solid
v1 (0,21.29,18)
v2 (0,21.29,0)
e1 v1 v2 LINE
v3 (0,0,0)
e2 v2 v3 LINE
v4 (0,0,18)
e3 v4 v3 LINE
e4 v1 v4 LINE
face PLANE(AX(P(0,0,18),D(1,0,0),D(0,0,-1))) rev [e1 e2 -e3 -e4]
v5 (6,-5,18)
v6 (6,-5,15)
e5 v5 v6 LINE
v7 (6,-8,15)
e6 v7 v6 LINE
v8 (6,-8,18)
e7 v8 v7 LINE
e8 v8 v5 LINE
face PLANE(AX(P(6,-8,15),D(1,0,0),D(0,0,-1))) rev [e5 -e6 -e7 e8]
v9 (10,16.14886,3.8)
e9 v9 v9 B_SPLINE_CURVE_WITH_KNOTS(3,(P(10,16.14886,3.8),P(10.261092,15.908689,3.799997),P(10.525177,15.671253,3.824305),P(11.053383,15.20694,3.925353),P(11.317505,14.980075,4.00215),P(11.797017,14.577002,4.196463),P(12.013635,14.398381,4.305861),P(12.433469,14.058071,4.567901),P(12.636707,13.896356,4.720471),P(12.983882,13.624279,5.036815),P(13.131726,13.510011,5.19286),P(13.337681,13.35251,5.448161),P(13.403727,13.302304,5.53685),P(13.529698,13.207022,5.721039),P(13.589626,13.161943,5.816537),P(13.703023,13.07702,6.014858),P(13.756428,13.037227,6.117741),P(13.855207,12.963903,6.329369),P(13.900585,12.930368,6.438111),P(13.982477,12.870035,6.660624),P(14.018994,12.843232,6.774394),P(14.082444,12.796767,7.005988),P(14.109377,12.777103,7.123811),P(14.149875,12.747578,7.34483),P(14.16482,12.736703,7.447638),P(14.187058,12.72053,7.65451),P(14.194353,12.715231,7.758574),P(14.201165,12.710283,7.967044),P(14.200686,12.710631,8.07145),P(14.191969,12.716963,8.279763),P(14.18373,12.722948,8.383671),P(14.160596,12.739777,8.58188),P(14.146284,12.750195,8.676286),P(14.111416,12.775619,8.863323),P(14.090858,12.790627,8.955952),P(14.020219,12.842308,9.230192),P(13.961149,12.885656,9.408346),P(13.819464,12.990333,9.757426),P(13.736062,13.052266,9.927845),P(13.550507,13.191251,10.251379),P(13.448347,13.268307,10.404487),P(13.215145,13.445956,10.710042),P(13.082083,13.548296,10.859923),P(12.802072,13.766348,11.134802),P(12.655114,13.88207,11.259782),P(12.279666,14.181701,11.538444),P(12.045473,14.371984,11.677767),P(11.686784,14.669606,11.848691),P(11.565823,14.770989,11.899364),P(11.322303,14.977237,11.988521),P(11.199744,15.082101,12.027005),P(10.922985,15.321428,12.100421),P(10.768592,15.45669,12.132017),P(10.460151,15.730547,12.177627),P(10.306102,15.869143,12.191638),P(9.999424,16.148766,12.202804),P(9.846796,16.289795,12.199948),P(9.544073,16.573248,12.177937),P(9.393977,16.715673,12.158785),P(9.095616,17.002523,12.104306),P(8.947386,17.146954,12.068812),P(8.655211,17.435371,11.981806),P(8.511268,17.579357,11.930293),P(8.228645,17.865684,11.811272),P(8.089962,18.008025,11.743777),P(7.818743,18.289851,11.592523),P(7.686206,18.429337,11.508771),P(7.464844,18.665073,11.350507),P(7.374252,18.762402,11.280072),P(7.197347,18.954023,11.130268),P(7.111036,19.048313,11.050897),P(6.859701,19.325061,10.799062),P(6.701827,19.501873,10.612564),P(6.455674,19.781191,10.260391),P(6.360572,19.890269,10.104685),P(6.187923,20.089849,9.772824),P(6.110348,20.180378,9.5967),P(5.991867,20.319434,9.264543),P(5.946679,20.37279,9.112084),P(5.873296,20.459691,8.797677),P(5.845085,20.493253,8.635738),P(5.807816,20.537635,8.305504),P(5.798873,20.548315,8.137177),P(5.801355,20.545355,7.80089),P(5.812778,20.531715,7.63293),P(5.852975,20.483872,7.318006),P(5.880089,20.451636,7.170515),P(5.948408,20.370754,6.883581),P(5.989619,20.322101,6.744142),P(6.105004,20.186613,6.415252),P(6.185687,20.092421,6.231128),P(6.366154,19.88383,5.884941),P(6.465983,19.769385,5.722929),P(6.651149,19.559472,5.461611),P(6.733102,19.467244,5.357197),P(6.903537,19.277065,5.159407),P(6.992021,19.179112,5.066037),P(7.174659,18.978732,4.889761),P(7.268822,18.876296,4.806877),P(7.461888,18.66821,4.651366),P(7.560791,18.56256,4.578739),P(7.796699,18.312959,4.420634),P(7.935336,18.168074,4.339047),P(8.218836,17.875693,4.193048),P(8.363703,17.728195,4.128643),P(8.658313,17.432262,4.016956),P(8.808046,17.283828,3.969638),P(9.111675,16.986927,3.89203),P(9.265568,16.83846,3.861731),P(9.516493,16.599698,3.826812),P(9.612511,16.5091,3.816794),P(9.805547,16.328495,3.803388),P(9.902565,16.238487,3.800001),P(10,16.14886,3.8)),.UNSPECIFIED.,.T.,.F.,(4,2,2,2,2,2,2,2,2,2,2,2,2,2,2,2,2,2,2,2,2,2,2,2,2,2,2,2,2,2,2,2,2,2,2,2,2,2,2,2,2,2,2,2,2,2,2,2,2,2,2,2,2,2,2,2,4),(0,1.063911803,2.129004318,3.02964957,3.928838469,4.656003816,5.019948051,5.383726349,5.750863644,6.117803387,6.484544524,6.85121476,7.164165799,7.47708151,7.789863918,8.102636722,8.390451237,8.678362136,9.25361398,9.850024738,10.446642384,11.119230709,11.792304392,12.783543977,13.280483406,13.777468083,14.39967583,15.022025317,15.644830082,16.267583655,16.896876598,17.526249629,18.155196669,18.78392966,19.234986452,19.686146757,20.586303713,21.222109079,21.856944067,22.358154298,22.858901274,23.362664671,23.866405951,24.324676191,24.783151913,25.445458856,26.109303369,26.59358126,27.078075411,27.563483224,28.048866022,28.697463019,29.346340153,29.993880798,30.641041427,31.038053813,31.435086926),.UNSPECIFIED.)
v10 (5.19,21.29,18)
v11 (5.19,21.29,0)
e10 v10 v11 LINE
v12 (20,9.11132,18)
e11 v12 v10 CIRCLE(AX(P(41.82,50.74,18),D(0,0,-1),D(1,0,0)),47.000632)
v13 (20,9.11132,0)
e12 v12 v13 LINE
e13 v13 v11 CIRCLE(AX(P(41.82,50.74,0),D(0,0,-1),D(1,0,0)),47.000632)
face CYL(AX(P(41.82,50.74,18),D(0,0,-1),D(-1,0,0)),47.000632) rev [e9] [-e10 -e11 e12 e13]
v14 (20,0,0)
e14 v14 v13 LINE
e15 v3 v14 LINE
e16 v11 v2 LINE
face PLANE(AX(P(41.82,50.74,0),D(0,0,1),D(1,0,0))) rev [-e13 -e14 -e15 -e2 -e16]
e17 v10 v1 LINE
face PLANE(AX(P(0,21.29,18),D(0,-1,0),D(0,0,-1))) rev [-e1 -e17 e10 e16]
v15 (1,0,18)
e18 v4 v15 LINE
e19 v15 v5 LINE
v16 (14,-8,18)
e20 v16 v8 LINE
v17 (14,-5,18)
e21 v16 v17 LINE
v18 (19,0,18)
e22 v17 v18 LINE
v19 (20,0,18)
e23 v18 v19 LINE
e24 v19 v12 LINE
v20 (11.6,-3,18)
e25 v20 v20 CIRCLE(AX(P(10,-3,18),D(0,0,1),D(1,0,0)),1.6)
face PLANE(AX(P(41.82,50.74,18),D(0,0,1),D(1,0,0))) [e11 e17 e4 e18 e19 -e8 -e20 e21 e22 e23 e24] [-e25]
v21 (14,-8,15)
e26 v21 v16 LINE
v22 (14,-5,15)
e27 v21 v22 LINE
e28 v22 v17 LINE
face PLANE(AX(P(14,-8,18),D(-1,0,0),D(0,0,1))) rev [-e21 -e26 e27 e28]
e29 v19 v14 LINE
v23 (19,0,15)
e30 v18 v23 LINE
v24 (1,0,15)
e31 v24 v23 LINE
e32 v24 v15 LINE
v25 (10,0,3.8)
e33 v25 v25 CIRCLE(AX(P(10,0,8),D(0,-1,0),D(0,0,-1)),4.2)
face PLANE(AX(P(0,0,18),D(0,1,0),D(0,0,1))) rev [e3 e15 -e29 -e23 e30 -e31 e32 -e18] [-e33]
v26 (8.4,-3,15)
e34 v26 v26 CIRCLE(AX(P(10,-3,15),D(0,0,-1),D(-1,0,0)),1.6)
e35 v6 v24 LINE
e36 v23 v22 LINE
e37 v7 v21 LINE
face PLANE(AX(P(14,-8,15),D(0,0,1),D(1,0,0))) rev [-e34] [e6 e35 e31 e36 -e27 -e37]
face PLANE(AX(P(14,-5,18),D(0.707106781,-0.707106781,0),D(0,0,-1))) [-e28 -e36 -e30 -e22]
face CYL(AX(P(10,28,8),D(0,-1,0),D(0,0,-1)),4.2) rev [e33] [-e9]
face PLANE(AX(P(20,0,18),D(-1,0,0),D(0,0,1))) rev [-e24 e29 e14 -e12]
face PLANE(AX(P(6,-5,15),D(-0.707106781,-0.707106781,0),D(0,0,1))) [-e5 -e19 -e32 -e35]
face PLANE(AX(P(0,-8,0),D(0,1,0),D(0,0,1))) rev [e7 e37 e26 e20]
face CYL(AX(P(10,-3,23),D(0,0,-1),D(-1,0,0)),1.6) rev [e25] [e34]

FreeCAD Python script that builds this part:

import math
import FreeCAD as App
import Part
import Sketcher

V = App.Vector
Q = App.Units.Quantity


def edges_at(feature, points):
    """Names of the edges that pass closest to the given points."""
    edges = feature.Shape.Edges
    near = lambda p: min(range(len(edges)), key=lambda i: edges[i].distToShape(Part.Vertex(*p))[0])
    return sorted({f"Edge{near(p) + 1}" for p in points})


def add_polygon(sketch, points):
    """Adds a closed chain of lines whose ends are joined by coincident constraints."""
    first, n = sketch.GeometryCount, len(points)
    for a, b in zip(points, points[1:] + points[:1]):
        sketch.addGeometry(Part.LineSegment(App.Vector(*a, 0), App.Vector(*b, 0)), False)
    for i in range(n):
        sketch.addConstraint(Sketcher.Constraint("Coincident", first + i, 2, first + (i + 1) % n, 1))

doc = App.newDocument("Part")
params = doc.addObject("Spreadsheet::Sheet", "Params")
for row, (alias, value) in enumerate([
    ("sketch1_width", "20 mm"),
    ("sketch1_width2", "5.19 mm"),
    ("sketch1_height", "21.29 mm"),
    ("pad1_length", "18 mm"),
    ("sketch2_diameter", "8.4 mm"),
    ("pocket1_length", "28 mm"),
    ("sketch3_width", "8 mm"),
    ("sketch3_height", "3 mm"),
    ("pad2_length", "8 mm"),
    ("chamfer_size", "5 mm"),
    ("chamfer2_size", "5 mm"),
    ("sketch4_diameter", "3.2 mm"),
    ("pocket2_length", "8 mm"),
], start=1):
    params.set(f"A{row}", alias)
    params.set(f"B{row}", "=" + value)
    params.setAlias(f"B{row}", alias)

body = doc.addObject("PartDesign::Body", "Body")

# Sketch on XY plane
sketch1 = body.newObject("Sketcher::SketchObject", "Sketch")
sketch1.AttachmentSupport = (doc.getObject("XY_Plane"), [""])
sketch1.MapMode = "FlatFace"
sketch1.addGeometry(Part.LineSegment(V(0, 0, 0), V(20, 0, 0)), False)
sketch1.addGeometry(Part.LineSegment(V(20, 0, 0), V(20, 9, 0)), False)
sketch1.addGeometry(Part.ArcOfCircle(Part.Circle(V(42, 51, 0), V(0, 0, 1), 47), math.radians(-141), math.radians(-118)), False)
sketch1.addGeometry(Part.LineSegment(V(5, 21, 0), V(0, 21, 0)), False)
sketch1.addGeometry(Part.LineSegment(V(0, 21, 0), V(0, 0, 0)), False)
sketch1.addConstraint(Sketcher.Constraint("Coincident", 0, 2, 1, 1))
sketch1.addConstraint(Sketcher.Constraint("Coincident", 1, 2, 2, 2))
sketch1.addConstraint(Sketcher.Constraint("Coincident", 2, 1, 3, 1))
sketch1.addConstraint(Sketcher.Constraint("Coincident", 3, 2, 4, 1))
sketch1.addConstraint(Sketcher.Constraint("Coincident", 4, 2, 0, 1))
sketch1.addConstraint(Sketcher.Constraint("Horizontal", 0))
sketch1.addConstraint(Sketcher.Constraint("Vertical", 1))
sketch1.addConstraint(Sketcher.Constraint("Horizontal", 3))
sketch1.addConstraint(Sketcher.Constraint("Vertical", 4))
sketch1.addConstraint(Sketcher.Constraint("Coincident", 4, 2, -1, 1))
sketch1.addConstraint(Sketcher.Constraint("DistanceX", 0, 1, 0, 2, Q("20 mm")))
sketch1.addConstraint(Sketcher.Constraint("DistanceX", 3, 2, 3, 1, Q("5.19 mm")))
sketch1.addConstraint(Sketcher.Constraint("DistanceY", 4, 2, 4, 1, Q("21.29 mm")))
sketch1.addConstraint(Sketcher.Constraint("DistanceX", -1, 1, 2, 3, Q("41.82 mm")))
sketch1.addConstraint(Sketcher.Constraint("DistanceY", -1, 1, 2, 3, Q("50.74 mm")))
sketch1.setExpression("Constraints[10]", "Params.sketch1_width")
sketch1.setExpression("Constraints[11]", "Params.sketch1_width2")
sketch1.setExpression("Constraints[12]", "Params.sketch1_height")
pad1 = body.newObject("PartDesign::Pad", "Pad")
pad1.Profile = sketch1
pad1.setExpression("Length", "Params.pad1_length")

# Sketch on XZ plane
sketch2 = body.newObject("Sketcher::SketchObject", "Sketch001")
sketch2.AttachmentSupport = (doc.getObject("XZ_Plane"), [""])
sketch2.MapMode = "FlatFace"
sketch2.addGeometry(Part.Circle(V(10, 8, 0), V(0, 0, 1), 4.2), False)
sketch2.addConstraint(Sketcher.Constraint("Diameter", 0, Q("8.4 mm")))
sketch2.addConstraint(Sketcher.Constraint("DistanceX", -1, 1, 0, 3, Q("10 mm")))
sketch2.addConstraint(Sketcher.Constraint("DistanceY", -1, 1, 0, 3, Q("8 mm")))
sketch2.setExpression("Constraints[0]", "Params.sketch2_diameter")
pocket1 = body.newObject("PartDesign::Pocket", "Pocket")
pocket1.Profile = sketch2
pocket1.setExpression("Length", "Params.pocket1_length")

# Sketch on XZ plane
sketch3 = body.newObject("Sketcher::SketchObject", "Sketch002")
sketch3.AttachmentSupport = (doc.getObject("XZ_Plane"), [""])
sketch3.MapMode = "FlatFace"
add_polygon(sketch3, [(6, 18), (6, 15), (14, 15), (14, 18)])  # lines 0-3
sketch3.addConstraint(Sketcher.Constraint("Vertical", 0))
sketch3.addConstraint(Sketcher.Constraint("Horizontal", 1))
sketch3.addConstraint(Sketcher.Constraint("Vertical", 2))
sketch3.addConstraint(Sketcher.Constraint("Horizontal", 3))
sketch3.addConstraint(Sketcher.Constraint("DistanceX", 1, 1, 1, 2, Q("8 mm")))
sketch3.addConstraint(Sketcher.Constraint("DistanceY", 0, 2, 0, 1, Q("3 mm")))
sketch3.addConstraint(Sketcher.Constraint("DistanceX", -1, 1, 0, 2, Q("6 mm")))
sketch3.addConstraint(Sketcher.Constraint("DistanceY", -1, 1, 0, 2, Q("15 mm")))
sketch3.setExpression("Constraints[8]", "Params.sketch3_width")
sketch3.setExpression("Constraints[9]", "Params.sketch3_height")
pad2 = body.newObject("PartDesign::Pad", "Pad001")
pad2.Profile = sketch3
pad2.setExpression("Length", "Params.pad2_length")
doc.recompute()

chamfer = body.newObject("PartDesign::Chamfer", "Chamfer")
chamfer.Base = (pad2, edges_at(pad2, [(14, 0, 16.5)]))
chamfer.setExpression("Size", "Params.chamfer_size")
doc.recompute()

chamfer2 = body.newObject("PartDesign::Chamfer", "Chamfer001")
chamfer2.Base = (chamfer, edges_at(chamfer, [(6, 0, 16.5)]))
chamfer2.setExpression("Size", "Params.chamfer2_size")

# Sketch on XY plane
sketch4 = body.newObject("Sketcher::SketchObject", "Sketch003")
sketch4.AttachmentSupport = (doc.getObject("XY_Plane"), [""])
sketch4.MapMode = "FlatFace"
sketch4.AttachmentOffset = App.Placement(V(0, 0, 15), App.Rotation())
sketch4.addGeometry(Part.Circle(V(10, -3, 0), V(0, 0, 1), 1.6), False)
sketch4.addConstraint(Sketcher.Constraint("Diameter", 0, Q("3.2 mm")))
sketch4.addConstraint(Sketcher.Constraint("DistanceX", -1, 1, 0, 3, Q("10 mm")))
sketch4.addConstraint(Sketcher.Constraint("DistanceY", 0, 3, -1, 1, Q("3 mm")))
sketch4.setExpression("Constraints[0]", "Params.sketch4_diameter")
pocket2 = body.newObject("PartDesign::Pocket", "Pocket001")
pocket2.Profile = sketch4
pocket2.setExpression("Length", "Params.pocket2_length")
pocket2.Reversed = True

doc.recompute()
